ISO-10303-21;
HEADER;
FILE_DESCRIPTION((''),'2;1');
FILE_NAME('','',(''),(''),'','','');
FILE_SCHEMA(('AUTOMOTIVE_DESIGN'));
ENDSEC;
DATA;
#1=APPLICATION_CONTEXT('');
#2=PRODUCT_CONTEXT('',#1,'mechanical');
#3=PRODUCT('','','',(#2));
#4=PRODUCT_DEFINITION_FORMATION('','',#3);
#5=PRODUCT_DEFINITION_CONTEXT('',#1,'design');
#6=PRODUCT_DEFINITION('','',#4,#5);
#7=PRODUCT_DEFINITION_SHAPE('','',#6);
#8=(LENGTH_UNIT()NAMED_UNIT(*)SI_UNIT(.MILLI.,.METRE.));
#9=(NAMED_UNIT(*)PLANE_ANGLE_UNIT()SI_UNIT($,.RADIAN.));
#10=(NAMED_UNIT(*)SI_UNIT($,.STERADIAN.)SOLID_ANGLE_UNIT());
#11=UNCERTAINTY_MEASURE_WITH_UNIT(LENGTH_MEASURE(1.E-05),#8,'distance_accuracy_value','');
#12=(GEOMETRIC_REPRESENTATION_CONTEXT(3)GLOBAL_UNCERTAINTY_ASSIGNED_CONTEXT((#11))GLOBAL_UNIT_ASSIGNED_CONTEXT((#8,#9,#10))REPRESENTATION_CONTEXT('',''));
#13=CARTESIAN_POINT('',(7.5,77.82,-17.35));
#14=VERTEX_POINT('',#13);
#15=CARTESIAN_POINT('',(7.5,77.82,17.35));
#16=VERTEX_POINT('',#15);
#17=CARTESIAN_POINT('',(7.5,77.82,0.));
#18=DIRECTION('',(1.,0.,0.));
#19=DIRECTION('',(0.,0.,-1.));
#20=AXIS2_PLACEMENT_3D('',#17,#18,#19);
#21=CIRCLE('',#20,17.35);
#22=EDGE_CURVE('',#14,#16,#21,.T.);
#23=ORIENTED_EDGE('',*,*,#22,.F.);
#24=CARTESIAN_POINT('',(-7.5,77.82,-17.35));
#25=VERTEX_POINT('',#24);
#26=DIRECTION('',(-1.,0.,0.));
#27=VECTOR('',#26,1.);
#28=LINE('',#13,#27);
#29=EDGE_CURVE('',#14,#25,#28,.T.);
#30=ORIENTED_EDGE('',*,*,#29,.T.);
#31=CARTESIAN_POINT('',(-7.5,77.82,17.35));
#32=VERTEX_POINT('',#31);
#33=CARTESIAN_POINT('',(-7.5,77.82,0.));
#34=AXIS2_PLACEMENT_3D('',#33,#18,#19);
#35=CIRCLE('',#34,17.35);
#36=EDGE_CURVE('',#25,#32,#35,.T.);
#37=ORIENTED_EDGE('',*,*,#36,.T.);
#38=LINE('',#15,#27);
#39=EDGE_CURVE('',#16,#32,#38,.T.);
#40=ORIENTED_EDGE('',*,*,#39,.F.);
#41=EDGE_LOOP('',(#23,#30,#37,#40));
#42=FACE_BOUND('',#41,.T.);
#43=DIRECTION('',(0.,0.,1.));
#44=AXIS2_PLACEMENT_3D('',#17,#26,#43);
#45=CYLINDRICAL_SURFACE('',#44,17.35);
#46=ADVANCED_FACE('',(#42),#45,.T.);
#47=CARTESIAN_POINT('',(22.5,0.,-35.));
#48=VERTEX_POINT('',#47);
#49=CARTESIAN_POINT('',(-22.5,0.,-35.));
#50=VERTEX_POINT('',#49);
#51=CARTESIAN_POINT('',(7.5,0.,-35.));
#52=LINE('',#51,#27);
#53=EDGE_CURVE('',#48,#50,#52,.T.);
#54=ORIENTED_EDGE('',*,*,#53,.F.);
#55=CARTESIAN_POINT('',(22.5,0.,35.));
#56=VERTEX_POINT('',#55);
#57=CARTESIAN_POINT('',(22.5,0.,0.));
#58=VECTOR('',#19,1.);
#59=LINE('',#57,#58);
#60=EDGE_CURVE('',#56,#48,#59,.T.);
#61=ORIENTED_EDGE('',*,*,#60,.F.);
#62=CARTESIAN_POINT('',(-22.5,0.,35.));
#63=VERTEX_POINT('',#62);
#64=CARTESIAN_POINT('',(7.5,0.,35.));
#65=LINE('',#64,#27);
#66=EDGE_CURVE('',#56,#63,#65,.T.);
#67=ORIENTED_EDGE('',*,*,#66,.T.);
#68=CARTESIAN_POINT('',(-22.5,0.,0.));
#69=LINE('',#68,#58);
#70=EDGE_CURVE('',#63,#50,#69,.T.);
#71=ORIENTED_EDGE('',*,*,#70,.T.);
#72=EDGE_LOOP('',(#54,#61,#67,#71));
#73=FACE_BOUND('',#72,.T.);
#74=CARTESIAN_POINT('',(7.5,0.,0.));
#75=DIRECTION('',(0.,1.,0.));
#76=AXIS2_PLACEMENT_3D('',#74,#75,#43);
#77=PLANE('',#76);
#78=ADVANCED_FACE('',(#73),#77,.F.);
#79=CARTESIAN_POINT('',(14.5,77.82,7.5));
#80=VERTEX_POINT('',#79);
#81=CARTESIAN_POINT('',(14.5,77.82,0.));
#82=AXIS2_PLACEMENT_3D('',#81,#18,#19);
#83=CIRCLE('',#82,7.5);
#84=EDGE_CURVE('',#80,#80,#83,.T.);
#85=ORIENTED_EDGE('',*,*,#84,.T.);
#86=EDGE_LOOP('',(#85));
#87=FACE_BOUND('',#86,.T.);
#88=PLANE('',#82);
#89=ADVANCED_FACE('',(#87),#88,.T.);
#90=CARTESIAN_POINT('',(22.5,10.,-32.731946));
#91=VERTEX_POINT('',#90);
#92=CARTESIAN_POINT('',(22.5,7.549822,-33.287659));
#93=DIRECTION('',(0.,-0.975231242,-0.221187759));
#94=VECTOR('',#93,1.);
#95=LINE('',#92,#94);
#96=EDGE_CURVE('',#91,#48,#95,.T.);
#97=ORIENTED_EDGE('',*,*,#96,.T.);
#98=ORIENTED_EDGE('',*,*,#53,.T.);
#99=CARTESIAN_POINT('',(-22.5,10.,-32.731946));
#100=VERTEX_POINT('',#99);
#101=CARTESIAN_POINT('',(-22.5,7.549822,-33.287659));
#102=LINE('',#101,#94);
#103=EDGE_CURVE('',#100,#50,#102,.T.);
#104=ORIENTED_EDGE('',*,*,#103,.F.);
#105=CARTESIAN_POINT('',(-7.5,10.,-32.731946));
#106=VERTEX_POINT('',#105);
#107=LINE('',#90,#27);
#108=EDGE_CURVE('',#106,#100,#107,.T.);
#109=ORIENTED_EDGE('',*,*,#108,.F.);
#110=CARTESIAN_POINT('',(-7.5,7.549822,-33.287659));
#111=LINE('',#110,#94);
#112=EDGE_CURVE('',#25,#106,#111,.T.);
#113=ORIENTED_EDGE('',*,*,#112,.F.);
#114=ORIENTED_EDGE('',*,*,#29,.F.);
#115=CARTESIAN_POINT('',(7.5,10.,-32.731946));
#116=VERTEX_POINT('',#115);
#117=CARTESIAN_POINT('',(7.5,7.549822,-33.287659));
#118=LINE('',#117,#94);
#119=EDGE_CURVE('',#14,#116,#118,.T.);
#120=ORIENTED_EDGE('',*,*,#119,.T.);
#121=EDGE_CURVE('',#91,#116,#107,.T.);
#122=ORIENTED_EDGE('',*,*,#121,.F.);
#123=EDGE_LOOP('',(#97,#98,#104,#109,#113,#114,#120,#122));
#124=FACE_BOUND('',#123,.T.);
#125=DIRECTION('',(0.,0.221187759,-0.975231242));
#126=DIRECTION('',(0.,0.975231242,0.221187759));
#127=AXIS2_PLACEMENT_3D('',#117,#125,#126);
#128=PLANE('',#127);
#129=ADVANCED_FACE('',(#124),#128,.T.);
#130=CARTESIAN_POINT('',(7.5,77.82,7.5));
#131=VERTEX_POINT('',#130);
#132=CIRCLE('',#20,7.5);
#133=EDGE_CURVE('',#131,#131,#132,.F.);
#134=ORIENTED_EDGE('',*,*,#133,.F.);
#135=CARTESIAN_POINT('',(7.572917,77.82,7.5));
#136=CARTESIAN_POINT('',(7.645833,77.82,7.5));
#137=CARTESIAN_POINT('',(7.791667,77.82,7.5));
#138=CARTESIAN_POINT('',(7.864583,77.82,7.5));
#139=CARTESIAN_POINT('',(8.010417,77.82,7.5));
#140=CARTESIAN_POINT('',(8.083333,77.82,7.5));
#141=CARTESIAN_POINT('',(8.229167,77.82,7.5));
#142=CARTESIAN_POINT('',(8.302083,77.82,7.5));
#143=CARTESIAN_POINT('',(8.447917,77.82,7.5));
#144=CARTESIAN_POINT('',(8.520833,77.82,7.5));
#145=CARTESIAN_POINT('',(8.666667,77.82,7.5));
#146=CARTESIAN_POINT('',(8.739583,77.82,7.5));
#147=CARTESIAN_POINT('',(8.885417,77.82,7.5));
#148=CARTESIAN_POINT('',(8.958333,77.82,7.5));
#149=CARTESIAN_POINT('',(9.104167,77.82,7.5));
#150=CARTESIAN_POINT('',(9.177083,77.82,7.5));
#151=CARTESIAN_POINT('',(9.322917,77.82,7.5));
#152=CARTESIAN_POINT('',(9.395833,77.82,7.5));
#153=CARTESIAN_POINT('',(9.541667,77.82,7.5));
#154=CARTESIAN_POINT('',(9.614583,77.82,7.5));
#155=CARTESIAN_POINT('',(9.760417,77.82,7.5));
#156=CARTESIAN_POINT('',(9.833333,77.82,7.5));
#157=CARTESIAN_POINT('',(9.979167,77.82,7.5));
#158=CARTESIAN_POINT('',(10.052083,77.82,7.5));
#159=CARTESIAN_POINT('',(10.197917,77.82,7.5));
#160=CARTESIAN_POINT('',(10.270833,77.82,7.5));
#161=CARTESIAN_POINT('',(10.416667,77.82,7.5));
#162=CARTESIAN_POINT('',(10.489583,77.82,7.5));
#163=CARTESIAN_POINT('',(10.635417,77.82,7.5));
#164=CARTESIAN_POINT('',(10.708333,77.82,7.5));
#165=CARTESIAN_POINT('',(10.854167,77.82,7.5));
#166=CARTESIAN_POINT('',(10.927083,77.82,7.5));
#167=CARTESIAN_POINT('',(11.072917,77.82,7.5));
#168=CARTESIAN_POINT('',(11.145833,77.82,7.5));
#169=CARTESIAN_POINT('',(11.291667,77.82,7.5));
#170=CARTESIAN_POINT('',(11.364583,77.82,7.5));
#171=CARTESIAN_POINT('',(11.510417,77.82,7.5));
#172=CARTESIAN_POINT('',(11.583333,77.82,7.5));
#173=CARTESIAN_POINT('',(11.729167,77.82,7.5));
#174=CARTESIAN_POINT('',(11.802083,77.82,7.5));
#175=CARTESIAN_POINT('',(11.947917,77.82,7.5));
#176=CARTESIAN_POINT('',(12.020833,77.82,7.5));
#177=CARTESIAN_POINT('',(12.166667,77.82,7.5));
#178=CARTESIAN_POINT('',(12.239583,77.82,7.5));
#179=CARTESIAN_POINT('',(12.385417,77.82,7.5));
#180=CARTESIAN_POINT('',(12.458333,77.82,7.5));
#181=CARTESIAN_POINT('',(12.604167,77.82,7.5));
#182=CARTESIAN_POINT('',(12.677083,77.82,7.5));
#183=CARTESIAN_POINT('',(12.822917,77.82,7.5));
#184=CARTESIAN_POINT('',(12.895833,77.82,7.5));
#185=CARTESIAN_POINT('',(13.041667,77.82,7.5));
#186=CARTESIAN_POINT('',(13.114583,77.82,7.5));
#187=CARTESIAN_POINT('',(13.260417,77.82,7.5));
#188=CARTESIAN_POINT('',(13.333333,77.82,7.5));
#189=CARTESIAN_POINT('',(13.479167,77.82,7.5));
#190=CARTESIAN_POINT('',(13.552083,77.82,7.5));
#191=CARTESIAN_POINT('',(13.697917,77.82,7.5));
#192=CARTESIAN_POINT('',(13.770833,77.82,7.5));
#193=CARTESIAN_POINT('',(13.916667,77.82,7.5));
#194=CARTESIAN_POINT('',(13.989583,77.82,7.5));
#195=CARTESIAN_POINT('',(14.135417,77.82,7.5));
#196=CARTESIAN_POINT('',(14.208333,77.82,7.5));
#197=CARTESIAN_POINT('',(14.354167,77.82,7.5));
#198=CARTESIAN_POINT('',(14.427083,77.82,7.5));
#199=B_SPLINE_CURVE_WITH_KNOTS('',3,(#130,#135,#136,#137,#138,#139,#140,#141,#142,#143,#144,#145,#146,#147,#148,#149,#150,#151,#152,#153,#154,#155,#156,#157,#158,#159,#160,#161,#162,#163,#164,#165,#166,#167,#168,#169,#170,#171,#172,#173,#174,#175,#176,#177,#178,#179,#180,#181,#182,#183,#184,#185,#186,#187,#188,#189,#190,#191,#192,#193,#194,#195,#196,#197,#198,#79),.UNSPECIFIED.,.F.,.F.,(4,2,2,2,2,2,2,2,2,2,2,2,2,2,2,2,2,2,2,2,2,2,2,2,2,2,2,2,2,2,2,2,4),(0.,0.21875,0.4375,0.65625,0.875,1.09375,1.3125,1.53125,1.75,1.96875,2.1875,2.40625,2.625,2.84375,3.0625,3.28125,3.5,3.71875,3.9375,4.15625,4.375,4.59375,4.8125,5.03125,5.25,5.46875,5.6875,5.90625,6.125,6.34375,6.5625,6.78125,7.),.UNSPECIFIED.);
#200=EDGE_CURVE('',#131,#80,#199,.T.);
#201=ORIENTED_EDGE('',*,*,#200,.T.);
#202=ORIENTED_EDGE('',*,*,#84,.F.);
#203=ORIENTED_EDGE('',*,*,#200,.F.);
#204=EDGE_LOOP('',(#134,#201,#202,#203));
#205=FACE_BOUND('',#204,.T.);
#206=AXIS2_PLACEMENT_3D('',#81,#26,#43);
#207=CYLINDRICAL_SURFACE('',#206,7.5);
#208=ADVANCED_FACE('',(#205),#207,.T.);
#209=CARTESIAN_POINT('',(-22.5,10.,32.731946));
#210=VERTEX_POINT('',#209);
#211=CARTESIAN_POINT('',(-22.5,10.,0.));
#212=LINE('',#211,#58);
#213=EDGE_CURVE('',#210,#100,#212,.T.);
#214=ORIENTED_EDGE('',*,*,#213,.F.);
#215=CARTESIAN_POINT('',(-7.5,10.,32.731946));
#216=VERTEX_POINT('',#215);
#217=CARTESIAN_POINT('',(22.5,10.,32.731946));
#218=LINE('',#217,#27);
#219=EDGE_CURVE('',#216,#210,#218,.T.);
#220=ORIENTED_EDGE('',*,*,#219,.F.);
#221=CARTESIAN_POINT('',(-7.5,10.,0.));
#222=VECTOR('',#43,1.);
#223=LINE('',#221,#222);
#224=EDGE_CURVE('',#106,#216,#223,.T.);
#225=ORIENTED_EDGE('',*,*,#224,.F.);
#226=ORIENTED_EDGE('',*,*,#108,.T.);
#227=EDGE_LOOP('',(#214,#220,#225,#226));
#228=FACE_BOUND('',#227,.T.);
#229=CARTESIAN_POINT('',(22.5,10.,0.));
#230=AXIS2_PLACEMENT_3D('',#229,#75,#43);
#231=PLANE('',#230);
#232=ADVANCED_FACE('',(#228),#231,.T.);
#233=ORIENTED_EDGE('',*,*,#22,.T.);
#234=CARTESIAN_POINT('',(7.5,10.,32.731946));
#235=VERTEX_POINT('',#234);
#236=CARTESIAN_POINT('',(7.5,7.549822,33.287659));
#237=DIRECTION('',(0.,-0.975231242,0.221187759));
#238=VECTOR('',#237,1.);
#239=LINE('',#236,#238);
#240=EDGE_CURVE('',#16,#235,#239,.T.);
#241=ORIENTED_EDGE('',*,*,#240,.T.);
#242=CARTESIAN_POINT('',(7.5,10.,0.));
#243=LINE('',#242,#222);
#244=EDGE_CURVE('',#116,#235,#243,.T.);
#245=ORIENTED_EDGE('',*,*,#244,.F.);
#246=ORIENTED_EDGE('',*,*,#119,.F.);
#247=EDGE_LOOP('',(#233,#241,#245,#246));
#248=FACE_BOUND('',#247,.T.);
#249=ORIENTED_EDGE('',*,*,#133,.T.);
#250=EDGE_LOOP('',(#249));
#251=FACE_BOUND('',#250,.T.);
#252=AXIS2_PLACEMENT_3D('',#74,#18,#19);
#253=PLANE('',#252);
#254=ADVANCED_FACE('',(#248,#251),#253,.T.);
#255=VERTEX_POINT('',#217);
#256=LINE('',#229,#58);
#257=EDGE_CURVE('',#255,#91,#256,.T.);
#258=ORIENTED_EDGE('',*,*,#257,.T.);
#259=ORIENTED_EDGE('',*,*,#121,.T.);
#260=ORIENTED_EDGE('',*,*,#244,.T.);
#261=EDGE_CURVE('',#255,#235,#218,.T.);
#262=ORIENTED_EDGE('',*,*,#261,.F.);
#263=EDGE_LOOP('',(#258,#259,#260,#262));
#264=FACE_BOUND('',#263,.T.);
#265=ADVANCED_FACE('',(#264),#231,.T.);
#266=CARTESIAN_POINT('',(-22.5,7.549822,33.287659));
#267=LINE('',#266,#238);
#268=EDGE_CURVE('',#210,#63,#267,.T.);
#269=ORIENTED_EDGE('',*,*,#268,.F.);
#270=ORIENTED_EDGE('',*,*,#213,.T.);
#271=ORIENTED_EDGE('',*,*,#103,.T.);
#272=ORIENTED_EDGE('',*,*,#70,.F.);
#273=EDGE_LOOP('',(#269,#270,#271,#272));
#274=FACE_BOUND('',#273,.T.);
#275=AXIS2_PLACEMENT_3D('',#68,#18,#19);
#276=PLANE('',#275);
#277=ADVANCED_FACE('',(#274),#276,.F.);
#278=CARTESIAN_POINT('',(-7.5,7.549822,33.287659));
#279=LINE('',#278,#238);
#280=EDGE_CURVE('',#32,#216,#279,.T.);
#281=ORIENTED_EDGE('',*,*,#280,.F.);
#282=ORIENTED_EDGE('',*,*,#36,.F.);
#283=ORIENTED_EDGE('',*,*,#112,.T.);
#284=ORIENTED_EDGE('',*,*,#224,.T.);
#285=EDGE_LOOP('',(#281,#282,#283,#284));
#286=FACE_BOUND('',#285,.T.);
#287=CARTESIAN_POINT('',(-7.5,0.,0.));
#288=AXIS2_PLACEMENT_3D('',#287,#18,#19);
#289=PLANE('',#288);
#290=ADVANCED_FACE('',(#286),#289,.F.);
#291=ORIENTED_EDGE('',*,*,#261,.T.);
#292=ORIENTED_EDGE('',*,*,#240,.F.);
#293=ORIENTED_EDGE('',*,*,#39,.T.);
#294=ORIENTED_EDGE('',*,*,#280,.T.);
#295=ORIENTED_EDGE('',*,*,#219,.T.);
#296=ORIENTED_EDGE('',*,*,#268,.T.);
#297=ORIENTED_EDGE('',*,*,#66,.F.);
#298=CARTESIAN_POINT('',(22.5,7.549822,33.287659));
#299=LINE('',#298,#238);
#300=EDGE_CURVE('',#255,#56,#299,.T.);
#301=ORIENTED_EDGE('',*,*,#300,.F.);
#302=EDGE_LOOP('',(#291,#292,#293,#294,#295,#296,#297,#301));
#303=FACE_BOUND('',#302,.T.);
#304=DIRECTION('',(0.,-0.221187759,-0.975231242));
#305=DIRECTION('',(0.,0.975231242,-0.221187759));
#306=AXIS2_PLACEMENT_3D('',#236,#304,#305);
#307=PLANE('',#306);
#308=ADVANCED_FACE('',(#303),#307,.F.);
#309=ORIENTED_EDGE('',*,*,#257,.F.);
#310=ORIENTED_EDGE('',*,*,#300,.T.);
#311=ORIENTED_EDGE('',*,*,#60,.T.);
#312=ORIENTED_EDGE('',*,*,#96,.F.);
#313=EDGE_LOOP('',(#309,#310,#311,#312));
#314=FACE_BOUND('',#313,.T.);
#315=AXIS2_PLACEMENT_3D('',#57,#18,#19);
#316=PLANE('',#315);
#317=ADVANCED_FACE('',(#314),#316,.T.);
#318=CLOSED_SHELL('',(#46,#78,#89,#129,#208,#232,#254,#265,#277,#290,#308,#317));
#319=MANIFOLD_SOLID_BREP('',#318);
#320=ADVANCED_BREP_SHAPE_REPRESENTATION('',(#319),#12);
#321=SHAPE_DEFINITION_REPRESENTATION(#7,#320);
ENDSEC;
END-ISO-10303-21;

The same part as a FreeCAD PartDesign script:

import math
import FreeCAD as App
import Part
import Sketcher
Q = App.Units.Quantity

doc = App.newDocument("Part")
body = doc.addObject("PartDesign::Body", "Body")

sketch1 = body.newObject("Sketcher::SketchObject", "Sketch")
sketch1.AttachmentSupport = (doc.getObject("YZ_Plane"), [""])
sketch1.MapMode = "FlatFace"
sketch1.addGeometry(Part.ArcOfCircle(Part.Circle(App.Vector(78, 0, 0), App.Vector(0, 0, 1), 17), math.radians(-90), math.radians(90)), False)
sketch1.addGeometry(Part.LineSegment(App.Vector(78, 17, 0), App.Vector(0, 35, 0)), False)
sketch1.addGeometry(Part.LineSegment(App.Vector(0, 35, 0), App.Vector(0, -35, 0)), False)
sketch1.addGeometry(Part.LineSegment(App.Vector(0, -35, 0), App.Vector(78, -17, 0)), False)
sketch1.addConstraint(Sketcher.Constraint("Coincident", 0, 2, 1, 1))
sketch1.addConstraint(Sketcher.Constraint("Coincident", 1, 2, 2, 1))
sketch1.addConstraint(Sketcher.Constraint("Coincident", 2, 2, 3, 1))
sketch1.addConstraint(Sketcher.Constraint("Coincident", 3, 2, 0, 1))
sketch1.addConstraint(Sketcher.Constraint("Vertical", 2))
sketch1.addConstraint(Sketcher.Constraint("Symmetric", 1, 2, 2, 2, -1, 1))
sketch1.addConstraint(Sketcher.Constraint("Symmetric", 0, 2, 3, 2, -1))
sketch1.addConstraint(Sketcher.Constraint("DistanceY", 2, 2, 2, 1, Q("70 mm")))
sketch1.addConstraint(Sketcher.Constraint("Radius", 0, Q("17.35 mm")))
sketch1.addConstraint(Sketcher.Constraint("DistanceX", -1, 1, 0, 3, Q("77.82 mm")))
sketch1.addConstraint(Sketcher.Constraint("DistanceX", -1, 1, 0, 2, Q("77.82 mm")))
pad1 = body.newObject("PartDesign::Pad", "Pad")
pad1.Profile = sketch1
pad1.Length = 15
pad1.Midplane = True

sketch2 = body.newObject("Sketcher::SketchObject", "Sketch001")
sketch2.AttachmentSupport = (doc.getObject("YZ_Plane"), [""])
sketch2.MapMode = "FlatFace"
sketch2.addGeometry(Part.LineSegment(App.Vector(10, 33, 0), App.Vector(0, 35, 0)), False)
sketch2.addGeometry(Part.LineSegment(App.Vector(0, 35, 0), App.Vector(0, -35, 0)), False)
sketch2.addGeometry(Part.LineSegment(App.Vector(0, -35, 0), App.Vector(10, -33, 0)), False)
sketch2.addGeometry(Part.LineSegment(App.Vector(10, -33, 0), App.Vector(10, 33, 0)), False)
sketch2.addConstraint(Sketcher.Constraint("Coincident", 0, 2, 1, 1))
sketch2.addConstraint(Sketcher.Constraint("Coincident", 1, 2, 2, 1))
sketch2.addConstraint(Sketcher.Constraint("Coincident", 2, 2, 3, 1))
sketch2.addConstraint(Sketcher.Constraint("Coincident", 3, 2, 0, 1))
sketch2.addConstraint(Sketcher.Constraint("Vertical", 1))
sketch2.addConstraint(Sketcher.Constraint("Vertical", 3))
sketch2.addConstraint(Sketcher.Constraint("Symmetric", 0, 2, 1, 2, -1, 1))
sketch2.addConstraint(Sketcher.Constraint("Equal", 0, 2))
sketch2.addConstraint(Sketcher.Constraint("DistanceY", 1, 2, 1, 1, Q("70 mm")))
sketch2.addConstraint(Sketcher.Constraint("DistanceX", -1, 1, 2, 2, Q("10 mm")))
sketch2.addConstraint(Sketcher.Constraint("DistanceY", 3, 1, 3, 2, Q("65.463891 mm")))
pad2 = body.newObject("PartDesign::Pad", "Pad001")
pad2.Profile = sketch2
pad2.Length = 45
pad2.Midplane = True

sketch3 = body.newObject("Sketcher::SketchObject", "Sketch002")
sketch3.AttachmentSupport = (doc.getObject("YZ_Plane"), [""])
sketch3.MapMode = "FlatFace"
sketch3.addGeometry(Part.Circle(App.Vector(78, 0, 0), App.Vector(0, 0, 1), 8), False)
sketch3.addConstraint(Sketcher.Constraint("PointOnObject", 0, 3, -1))
sketch3.addConstraint(Sketcher.Constraint("Diameter", 0, Q("15 mm")))
sketch3.addConstraint(Sketcher.Constraint("DistanceX", -1, 1, 0, 3, Q("77.82 mm")))
pad3 = body.newObject("PartDesign::Pad", "Pad002")
pad3.Profile = sketch3
pad3.Length = 14.5

doc.recompute()
